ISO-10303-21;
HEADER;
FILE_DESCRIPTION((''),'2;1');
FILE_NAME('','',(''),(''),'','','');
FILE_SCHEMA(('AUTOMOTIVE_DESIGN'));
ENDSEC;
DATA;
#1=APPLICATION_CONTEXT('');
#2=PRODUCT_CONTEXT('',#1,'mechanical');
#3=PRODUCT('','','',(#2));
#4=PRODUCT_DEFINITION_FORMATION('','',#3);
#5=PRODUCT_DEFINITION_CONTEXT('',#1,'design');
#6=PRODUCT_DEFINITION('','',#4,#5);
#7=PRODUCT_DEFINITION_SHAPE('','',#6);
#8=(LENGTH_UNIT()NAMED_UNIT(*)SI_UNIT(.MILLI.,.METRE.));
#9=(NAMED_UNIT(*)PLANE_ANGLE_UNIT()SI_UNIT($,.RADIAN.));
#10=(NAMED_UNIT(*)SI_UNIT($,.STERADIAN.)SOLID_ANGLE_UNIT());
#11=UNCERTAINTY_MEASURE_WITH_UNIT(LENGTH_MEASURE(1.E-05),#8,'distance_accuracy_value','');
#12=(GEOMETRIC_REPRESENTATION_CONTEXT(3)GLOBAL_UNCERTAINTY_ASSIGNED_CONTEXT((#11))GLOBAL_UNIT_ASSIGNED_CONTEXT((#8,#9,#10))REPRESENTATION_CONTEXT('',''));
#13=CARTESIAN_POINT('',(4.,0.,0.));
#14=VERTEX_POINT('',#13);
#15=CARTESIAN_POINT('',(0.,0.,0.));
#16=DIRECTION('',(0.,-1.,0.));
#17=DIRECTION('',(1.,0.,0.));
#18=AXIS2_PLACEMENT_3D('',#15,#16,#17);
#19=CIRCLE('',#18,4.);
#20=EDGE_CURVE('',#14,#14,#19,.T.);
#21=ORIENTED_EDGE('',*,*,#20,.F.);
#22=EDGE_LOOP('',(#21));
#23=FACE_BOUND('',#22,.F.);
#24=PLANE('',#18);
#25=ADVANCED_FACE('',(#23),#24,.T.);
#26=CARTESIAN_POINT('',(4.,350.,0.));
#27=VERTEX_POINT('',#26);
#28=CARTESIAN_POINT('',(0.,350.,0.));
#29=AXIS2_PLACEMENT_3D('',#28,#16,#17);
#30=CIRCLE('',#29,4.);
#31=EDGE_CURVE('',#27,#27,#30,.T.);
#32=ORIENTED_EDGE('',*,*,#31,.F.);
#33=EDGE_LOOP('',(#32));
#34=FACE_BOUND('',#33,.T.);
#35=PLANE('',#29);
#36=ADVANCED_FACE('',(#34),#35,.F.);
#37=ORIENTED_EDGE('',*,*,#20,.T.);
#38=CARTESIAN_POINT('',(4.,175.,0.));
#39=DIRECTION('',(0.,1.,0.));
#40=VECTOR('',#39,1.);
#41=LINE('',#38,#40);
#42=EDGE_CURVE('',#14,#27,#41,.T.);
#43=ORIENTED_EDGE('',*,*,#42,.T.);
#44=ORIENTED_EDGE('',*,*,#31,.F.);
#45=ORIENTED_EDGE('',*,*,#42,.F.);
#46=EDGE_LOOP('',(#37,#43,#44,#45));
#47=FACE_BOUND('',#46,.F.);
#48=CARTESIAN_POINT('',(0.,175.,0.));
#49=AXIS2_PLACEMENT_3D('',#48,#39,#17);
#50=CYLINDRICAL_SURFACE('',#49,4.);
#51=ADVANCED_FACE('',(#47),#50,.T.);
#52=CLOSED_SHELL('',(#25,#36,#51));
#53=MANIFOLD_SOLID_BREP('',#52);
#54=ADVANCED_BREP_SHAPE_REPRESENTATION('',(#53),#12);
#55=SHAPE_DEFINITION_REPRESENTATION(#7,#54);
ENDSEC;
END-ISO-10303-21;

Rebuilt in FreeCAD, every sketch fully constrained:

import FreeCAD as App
import Part
import Sketcher

V = App.Vector
Q = App.Units.Quantity

doc = App.newDocument("Part")
params = doc.addObject("Spreadsheet::Sheet", "Params")
for row, (alias, value) in enumerate([
    ("sketch1_width", "4 mm"),
    ("sketch1_height", "350 mm"),
    ("revolution_angle", "360 deg"),
], start=1):
    params.set(f"A{row}", alias)
    params.set(f"B{row}", "=" + value)
    params.setAlias(f"B{row}", alias)

body = doc.addObject("PartDesign::Body", "Body")

# Sketch on XY plane
sketch1 = doc.addObject("Sketcher::SketchObject", "Sketch")
body.addObject(sketch1)
sketch1.AttachmentSupport = (doc.XY_Plane, [""])
sketch1.MapMode = "FlatFace"
sketch1.addGeometry(Part.LineSegment(V(0, 350, 0), V(0, 0, 0)), False)
sketch1.addGeometry(Part.LineSegment(V(0, 0, 0), V(4, 0, 0)), False)
sketch1.addGeometry(Part.LineSegment(V(4, 0, 0), V(4, 350, 0)), False)
sketch1.addGeometry(Part.LineSegment(V(4, 350, 0), V(0, 350, 0)), False)
sketch1.addConstraint(Sketcher.Constraint("Coincident", 0, 2, 1, 1))
sketch1.addConstraint(Sketcher.Constraint("Coincident", 1, 2, 2, 1))
sketch1.addConstraint(Sketcher.Constraint("Coincident", 2, 2, 3, 1))
sketch1.addConstraint(Sketcher.Constraint("Coincident", 3, 2, 0, 1))
sketch1.addConstraint(Sketcher.Constraint("Vertical", 0))
sketch1.addConstraint(Sketcher.Constraint("Horizontal", 1))
sketch1.addConstraint(Sketcher.Constraint("Vertical", 2))
sketch1.addConstraint(Sketcher.Constraint("Horizontal", 3))
sketch1.addConstraint(Sketcher.Constraint("Coincident", 0, 2, -1, 1))
sketch1.addConstraint(Sketcher.Constraint("DistanceX", 1, 1, 1, 2, Q("4 mm")))
sketch1.addConstraint(Sketcher.Constraint("DistanceY", 0, 2, 0, 1, Q("350 mm")))
sketch1.setExpression("Constraints[9]", "Params.sketch1_width")
sketch1.setExpression("Constraints[10]", "Params.sketch1_height")
revolution = doc.addObject("PartDesign::Revolution", "Revolution")
body.addObject(revolution)
revolution.Profile = sketch1
revolution.ReferenceAxis = (sketch1, ["V_Axis"])
revolution.setExpression("Angle", "Params.revolution_angle")

doc.recompute()
